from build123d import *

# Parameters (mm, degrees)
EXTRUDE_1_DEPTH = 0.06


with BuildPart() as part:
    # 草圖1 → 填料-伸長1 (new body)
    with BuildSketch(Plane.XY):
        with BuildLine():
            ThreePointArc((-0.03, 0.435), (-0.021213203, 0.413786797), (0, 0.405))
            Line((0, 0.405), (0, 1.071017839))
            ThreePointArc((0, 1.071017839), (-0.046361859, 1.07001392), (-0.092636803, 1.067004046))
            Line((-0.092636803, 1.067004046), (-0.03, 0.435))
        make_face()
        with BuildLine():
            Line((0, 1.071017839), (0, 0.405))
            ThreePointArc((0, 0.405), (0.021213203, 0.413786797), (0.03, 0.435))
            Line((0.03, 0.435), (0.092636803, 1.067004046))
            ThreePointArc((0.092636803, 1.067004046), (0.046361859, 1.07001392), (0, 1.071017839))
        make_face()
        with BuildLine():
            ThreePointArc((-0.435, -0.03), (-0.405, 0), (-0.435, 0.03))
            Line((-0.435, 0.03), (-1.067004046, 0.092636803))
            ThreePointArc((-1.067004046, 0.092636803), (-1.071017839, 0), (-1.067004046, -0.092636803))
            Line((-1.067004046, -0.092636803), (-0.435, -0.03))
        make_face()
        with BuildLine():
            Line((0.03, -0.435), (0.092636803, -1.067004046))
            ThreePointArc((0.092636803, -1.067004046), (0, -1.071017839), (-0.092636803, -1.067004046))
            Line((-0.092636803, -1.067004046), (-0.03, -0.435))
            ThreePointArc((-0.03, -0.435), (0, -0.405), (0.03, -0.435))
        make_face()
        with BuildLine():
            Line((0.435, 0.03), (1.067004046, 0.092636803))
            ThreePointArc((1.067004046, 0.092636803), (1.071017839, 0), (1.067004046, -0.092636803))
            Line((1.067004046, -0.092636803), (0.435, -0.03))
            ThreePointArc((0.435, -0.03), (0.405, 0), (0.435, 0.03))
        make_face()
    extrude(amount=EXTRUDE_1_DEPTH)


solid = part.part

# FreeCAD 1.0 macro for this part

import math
import FreeCAD as App
import Part
import Sketcher
Q = App.Units.Quantity

doc = App.newDocument("Part")
params = doc.addObject("Spreadsheet::Sheet", "Params")
for row, (alias, value) in enumerate([
    ("sketch1_radius", "0.03 mm"),
    ("pad1_length", "0.06 mm"),
], start=1):
    params.set(f"A{row}", alias)
    params.set(f"B{row}", "=" + value)
    params.setAlias(f"B{row}", alias)

body = doc.addObject("PartDesign::Body", "Body")
body.AllowCompound = True

# Sketch on XY plane
sketch1 = body.newObject("Sketcher::SketchObject", "Sketch")
sketch1.AttachmentSupport = (doc.getObject("XY_Plane"), [""])
sketch1.MapMode = "FlatFace"
sketch1.addGeometry(Part.ArcOfCircle(Part.Circle(App.Vector(0, 0.435, 0), App.Vector(0, 0, 1), 0.03), math.radians(-180), math.radians(-90)), False)
sketch1.addGeometry(Part.ArcOfCircle(Part.Circle(App.Vector(0, 0.435, 0), App.Vector(0, 0, 1), 0.03), math.radians(-90), math.radians(0)), False)
sketch1.addGeometry(Part.LineSegment(App.Vector(0.03, 0.435, 0), App.Vector(0.093, 1.067, 0)), False)
sketch1.addGeometry(Part.ArcOfCircle(Part.Circle(App.Vector(0, 0, 0), App.Vector(0, 0, 1), 1.071), math.radians(85.04), math.radians(90)), False)
sketch1.addGeometry(Part.ArcOfCircle(Part.Circle(App.Vector(0, 0, 0), App.Vector(0, 0, 1), 1.071), math.radians(90), math.radians(94.96)), False)
sketch1.addGeometry(Part.LineSegment(App.Vector(-0.093, 1.067, 0), App.Vector(-0.03, 0.435, 0)), False)
sketch1.addGeometry(Part.ArcOfCircle(Part.Circle(App.Vector(-0.435, 0, 0), App.Vector(0, 0, 1), 0.03), math.radians(-90), math.radians(90)), False)
sketch1.addGeometry(Part.LineSegment(App.Vector(-0.435, 0.03, 0), App.Vector(-1.067, 0.093, 0)), False)
sketch1.addGeometry(Part.ArcOfCircle(Part.Circle(App.Vector(0, 0, 0), App.Vector(0, 0, 1), 1.071), math.radians(175.04), math.radians(184.96)), False)
sketch1.addGeometry(Part.LineSegment(App.Vector(-1.067, -0.093, 0), App.Vector(-0.435, -0.03, 0)), False)
sketch1.addGeometry(Part.LineSegment(App.Vector(0.093, -1.067, 0), App.Vector(0.03, -0.435, 0)), False)
sketch1.addGeometry(Part.ArcOfCircle(Part.Circle(App.Vector(0, -0.435, 0), App.Vector(0, 0, 1), 0.03), math.radians(0), math.radians(180)), False)
sketch1.addGeometry(Part.LineSegment(App.Vector(-0.03, -0.435, 0), App.Vector(-0.093, -1.067, 0)), False)
sketch1.addGeometry(Part.ArcOfCircle(Part.Circle(App.Vector(0, 0, 0), App.Vector(0, 0, 1), 1.071), math.radians(-94.96), math.radians(-85.04)), False)
sketch1.addGeometry(Part.LineSegment(App.Vector(1.067, 0.093, 0), App.Vector(0.435, 0.03, 0)), False)
sketch1.addGeometry(Part.ArcOfCircle(Part.Circle(App.Vector(0.435, 0, 0), App.Vector(0, 0, 1), 0.03), math.radians(90), math.radians(270)), False)
sketch1.addGeometry(Part.LineSegment(App.Vector(0.435, -0.03, 0), App.Vector(1.067, -0.093, 0)), False)
sketch1.addGeometry(Part.ArcOfCircle(Part.Circle(App.Vector(0, 0, 0), App.Vector(0, 0, 1), 1.071), math.radians(-4.96), math.radians(4.96)), False)
sketch1.addConstraint(Sketcher.Constraint("Tangent", 0, 2, 1, 1))
sketch1.addConstraint(Sketcher.Constraint("Coincident", 1, 2, 2, 1))
sketch1.addConstraint(Sketcher.Constraint("Coincident", 2, 2, 3, 1))
sketch1.addConstraint(Sketcher.Constraint("Tangent", 3, 2, 4, 1))
sketch1.addConstraint(Sketcher.Constraint("Coincident", 4, 2, 5, 1))
sketch1.addConstraint(Sketcher.Constraint("Coincident", 5, 2, 0, 1))
sketch1.addConstraint(Sketcher.Constraint("Coincident", 6, 2, 7, 1))
sketch1.addConstraint(Sketcher.Constraint("Coincident", 7, 2, 8, 1))
sketch1.addConstraint(Sketcher.Constraint("Coincident", 8, 2, 9, 1))
sketch1.addConstraint(Sketcher.Constraint("Coincident", 9, 2, 6, 1))
sketch1.addConstraint(Sketcher.Constraint("Coincident", 10, 2, 11, 1))
sketch1.addConstraint(Sketcher.Constraint("Coincident", 11, 2, 12, 1))
sketch1.addConstraint(Sketcher.Constraint("Coincident", 12, 2, 13, 1))
sketch1.addConstraint(Sketcher.Constraint("Coincident", 13, 2, 10, 1))
sketch1.addConstraint(Sketcher.Constraint("Coincident", 14, 2, 15, 1))
sketch1.addConstraint(Sketcher.Constraint("Coincident", 15, 2, 16, 1))
sketch1.addConstraint(Sketcher.Constraint("Coincident", 16, 2, 17, 1))
sketch1.addConstraint(Sketcher.Constraint("Coincident", 17, 2, 14, 1))
sketch1.addConstraint(Sketcher.Constraint("Coincident", 3, 3, -1, 1))
sketch1.addConstraint(Sketcher.Constraint("Coincident", 8, 3, -1, 1))
sketch1.addConstraint(Sketcher.Constraint("Coincident", 13, 3, -1, 1))
sketch1.addConstraint(Sketcher.Constraint("Coincident", 17, 3, -1, 1))
sketch1.addConstraint(Sketcher.Constraint("Equal", 0, 1))
sketch1.addConstraint(Sketcher.Constraint("Equal", 3, 4))
sketch1.addConstraint(Sketcher.Constraint("Equal", 1, 6))
sketch1.addConstraint(Sketcher.Constraint("Equal", 4, 8))
sketch1.addConstraint(Sketcher.Constraint("Equal", 6, 11))
sketch1.addConstraint(Sketcher.Constraint("Equal", 8, 13))
sketch1.addConstraint(Sketcher.Constraint("Equal", 11, 15))
sketch1.addConstraint(Sketcher.Constraint("Equal", 13, 17))
sketch1.addConstraint(Sketcher.Constraint("Symmetric", 0, 3, 11, 3, -1, 1))
sketch1.addConstraint(Sketcher.Constraint("Symmetric", 6, 3, 15, 3, -1, 1))
sketch1.addConstraint(Sketcher.Constraint("Symmetric", 1, 2, 5, 2, -2))
sketch1.addConstraint(Sketcher.Constraint("Symmetric", 6, 2, 14, 2, -2))
sketch1.addConstraint(Sketcher.Constraint("PointOnObject", 0, 2, -2))
sketch1.addConstraint(Sketcher.Constraint("PointOnObject", 3, 2, -2))
sketch1.addConstraint(Sketcher.Constraint("Perpendicular", 2, 7))
sketch1.addConstraint(Sketcher.Constraint("Perpendicular", 5, 9))
sketch1.addConstraint(Sketcher.Constraint("Perpendicular", 9, 10))
sketch1.addConstraint(Sketcher.Constraint("Perpendicular", 7, 12))
sketch1.addConstraint(Sketcher.Constraint("Perpendicular", 10, 14))
sketch1.addConstraint(Sketcher.Constraint("Perpendicular", 12, 16))
sketch1.addConstraint(Sketcher.Constraint("Horizontal", 0, 3, 1, 2))
sketch1.addConstraint(Sketcher.Constraint("Horizontal", 2, 2, 4, 2))
sketch1.addConstraint(Sketcher.Constraint("Horizontal", 11, 3, 10, 2))
sketch1.addConstraint(Sketcher.Constraint("Horizontal", 10, 2, 11, 2))
sketch1.addConstraint(Sketcher.Constraint("Horizontal", 8, 2, 16, 2))
sketch1.addConstraint(Sketcher.Constraint("Vertical", 6, 2, 9, 2))
sketch1.addConstraint(Sketcher.Constraint("Vertical", 15, 3, 14, 2))
sketch1.addConstraint(Sketcher.Constraint("Equal", 5, 7))
sketch1.addConstraint(Sketcher.Constraint("Radius", 0, Q("0.03 mm")))
sketch1.addConstraint(Sketcher.Constraint("Angle", 2, Q("84.34 deg")))
sketch1.addConstraint(Sketcher.Constraint("Radius", 3, Q("1.071018 mm")))
sketch1.addConstraint(Sketcher.Constraint("DistanceY", 11, 3, 0, 3, Q("0.87 mm")))
sketch1.setExpression("Constraints[50]", "Params.sketch1_radius")
pad1 = body.newObject("PartDesign::Pad", "Pad")
pad1.Profile = sketch1
pad1.setExpression("Length", "Params.pad1_length")

doc.recompute()
